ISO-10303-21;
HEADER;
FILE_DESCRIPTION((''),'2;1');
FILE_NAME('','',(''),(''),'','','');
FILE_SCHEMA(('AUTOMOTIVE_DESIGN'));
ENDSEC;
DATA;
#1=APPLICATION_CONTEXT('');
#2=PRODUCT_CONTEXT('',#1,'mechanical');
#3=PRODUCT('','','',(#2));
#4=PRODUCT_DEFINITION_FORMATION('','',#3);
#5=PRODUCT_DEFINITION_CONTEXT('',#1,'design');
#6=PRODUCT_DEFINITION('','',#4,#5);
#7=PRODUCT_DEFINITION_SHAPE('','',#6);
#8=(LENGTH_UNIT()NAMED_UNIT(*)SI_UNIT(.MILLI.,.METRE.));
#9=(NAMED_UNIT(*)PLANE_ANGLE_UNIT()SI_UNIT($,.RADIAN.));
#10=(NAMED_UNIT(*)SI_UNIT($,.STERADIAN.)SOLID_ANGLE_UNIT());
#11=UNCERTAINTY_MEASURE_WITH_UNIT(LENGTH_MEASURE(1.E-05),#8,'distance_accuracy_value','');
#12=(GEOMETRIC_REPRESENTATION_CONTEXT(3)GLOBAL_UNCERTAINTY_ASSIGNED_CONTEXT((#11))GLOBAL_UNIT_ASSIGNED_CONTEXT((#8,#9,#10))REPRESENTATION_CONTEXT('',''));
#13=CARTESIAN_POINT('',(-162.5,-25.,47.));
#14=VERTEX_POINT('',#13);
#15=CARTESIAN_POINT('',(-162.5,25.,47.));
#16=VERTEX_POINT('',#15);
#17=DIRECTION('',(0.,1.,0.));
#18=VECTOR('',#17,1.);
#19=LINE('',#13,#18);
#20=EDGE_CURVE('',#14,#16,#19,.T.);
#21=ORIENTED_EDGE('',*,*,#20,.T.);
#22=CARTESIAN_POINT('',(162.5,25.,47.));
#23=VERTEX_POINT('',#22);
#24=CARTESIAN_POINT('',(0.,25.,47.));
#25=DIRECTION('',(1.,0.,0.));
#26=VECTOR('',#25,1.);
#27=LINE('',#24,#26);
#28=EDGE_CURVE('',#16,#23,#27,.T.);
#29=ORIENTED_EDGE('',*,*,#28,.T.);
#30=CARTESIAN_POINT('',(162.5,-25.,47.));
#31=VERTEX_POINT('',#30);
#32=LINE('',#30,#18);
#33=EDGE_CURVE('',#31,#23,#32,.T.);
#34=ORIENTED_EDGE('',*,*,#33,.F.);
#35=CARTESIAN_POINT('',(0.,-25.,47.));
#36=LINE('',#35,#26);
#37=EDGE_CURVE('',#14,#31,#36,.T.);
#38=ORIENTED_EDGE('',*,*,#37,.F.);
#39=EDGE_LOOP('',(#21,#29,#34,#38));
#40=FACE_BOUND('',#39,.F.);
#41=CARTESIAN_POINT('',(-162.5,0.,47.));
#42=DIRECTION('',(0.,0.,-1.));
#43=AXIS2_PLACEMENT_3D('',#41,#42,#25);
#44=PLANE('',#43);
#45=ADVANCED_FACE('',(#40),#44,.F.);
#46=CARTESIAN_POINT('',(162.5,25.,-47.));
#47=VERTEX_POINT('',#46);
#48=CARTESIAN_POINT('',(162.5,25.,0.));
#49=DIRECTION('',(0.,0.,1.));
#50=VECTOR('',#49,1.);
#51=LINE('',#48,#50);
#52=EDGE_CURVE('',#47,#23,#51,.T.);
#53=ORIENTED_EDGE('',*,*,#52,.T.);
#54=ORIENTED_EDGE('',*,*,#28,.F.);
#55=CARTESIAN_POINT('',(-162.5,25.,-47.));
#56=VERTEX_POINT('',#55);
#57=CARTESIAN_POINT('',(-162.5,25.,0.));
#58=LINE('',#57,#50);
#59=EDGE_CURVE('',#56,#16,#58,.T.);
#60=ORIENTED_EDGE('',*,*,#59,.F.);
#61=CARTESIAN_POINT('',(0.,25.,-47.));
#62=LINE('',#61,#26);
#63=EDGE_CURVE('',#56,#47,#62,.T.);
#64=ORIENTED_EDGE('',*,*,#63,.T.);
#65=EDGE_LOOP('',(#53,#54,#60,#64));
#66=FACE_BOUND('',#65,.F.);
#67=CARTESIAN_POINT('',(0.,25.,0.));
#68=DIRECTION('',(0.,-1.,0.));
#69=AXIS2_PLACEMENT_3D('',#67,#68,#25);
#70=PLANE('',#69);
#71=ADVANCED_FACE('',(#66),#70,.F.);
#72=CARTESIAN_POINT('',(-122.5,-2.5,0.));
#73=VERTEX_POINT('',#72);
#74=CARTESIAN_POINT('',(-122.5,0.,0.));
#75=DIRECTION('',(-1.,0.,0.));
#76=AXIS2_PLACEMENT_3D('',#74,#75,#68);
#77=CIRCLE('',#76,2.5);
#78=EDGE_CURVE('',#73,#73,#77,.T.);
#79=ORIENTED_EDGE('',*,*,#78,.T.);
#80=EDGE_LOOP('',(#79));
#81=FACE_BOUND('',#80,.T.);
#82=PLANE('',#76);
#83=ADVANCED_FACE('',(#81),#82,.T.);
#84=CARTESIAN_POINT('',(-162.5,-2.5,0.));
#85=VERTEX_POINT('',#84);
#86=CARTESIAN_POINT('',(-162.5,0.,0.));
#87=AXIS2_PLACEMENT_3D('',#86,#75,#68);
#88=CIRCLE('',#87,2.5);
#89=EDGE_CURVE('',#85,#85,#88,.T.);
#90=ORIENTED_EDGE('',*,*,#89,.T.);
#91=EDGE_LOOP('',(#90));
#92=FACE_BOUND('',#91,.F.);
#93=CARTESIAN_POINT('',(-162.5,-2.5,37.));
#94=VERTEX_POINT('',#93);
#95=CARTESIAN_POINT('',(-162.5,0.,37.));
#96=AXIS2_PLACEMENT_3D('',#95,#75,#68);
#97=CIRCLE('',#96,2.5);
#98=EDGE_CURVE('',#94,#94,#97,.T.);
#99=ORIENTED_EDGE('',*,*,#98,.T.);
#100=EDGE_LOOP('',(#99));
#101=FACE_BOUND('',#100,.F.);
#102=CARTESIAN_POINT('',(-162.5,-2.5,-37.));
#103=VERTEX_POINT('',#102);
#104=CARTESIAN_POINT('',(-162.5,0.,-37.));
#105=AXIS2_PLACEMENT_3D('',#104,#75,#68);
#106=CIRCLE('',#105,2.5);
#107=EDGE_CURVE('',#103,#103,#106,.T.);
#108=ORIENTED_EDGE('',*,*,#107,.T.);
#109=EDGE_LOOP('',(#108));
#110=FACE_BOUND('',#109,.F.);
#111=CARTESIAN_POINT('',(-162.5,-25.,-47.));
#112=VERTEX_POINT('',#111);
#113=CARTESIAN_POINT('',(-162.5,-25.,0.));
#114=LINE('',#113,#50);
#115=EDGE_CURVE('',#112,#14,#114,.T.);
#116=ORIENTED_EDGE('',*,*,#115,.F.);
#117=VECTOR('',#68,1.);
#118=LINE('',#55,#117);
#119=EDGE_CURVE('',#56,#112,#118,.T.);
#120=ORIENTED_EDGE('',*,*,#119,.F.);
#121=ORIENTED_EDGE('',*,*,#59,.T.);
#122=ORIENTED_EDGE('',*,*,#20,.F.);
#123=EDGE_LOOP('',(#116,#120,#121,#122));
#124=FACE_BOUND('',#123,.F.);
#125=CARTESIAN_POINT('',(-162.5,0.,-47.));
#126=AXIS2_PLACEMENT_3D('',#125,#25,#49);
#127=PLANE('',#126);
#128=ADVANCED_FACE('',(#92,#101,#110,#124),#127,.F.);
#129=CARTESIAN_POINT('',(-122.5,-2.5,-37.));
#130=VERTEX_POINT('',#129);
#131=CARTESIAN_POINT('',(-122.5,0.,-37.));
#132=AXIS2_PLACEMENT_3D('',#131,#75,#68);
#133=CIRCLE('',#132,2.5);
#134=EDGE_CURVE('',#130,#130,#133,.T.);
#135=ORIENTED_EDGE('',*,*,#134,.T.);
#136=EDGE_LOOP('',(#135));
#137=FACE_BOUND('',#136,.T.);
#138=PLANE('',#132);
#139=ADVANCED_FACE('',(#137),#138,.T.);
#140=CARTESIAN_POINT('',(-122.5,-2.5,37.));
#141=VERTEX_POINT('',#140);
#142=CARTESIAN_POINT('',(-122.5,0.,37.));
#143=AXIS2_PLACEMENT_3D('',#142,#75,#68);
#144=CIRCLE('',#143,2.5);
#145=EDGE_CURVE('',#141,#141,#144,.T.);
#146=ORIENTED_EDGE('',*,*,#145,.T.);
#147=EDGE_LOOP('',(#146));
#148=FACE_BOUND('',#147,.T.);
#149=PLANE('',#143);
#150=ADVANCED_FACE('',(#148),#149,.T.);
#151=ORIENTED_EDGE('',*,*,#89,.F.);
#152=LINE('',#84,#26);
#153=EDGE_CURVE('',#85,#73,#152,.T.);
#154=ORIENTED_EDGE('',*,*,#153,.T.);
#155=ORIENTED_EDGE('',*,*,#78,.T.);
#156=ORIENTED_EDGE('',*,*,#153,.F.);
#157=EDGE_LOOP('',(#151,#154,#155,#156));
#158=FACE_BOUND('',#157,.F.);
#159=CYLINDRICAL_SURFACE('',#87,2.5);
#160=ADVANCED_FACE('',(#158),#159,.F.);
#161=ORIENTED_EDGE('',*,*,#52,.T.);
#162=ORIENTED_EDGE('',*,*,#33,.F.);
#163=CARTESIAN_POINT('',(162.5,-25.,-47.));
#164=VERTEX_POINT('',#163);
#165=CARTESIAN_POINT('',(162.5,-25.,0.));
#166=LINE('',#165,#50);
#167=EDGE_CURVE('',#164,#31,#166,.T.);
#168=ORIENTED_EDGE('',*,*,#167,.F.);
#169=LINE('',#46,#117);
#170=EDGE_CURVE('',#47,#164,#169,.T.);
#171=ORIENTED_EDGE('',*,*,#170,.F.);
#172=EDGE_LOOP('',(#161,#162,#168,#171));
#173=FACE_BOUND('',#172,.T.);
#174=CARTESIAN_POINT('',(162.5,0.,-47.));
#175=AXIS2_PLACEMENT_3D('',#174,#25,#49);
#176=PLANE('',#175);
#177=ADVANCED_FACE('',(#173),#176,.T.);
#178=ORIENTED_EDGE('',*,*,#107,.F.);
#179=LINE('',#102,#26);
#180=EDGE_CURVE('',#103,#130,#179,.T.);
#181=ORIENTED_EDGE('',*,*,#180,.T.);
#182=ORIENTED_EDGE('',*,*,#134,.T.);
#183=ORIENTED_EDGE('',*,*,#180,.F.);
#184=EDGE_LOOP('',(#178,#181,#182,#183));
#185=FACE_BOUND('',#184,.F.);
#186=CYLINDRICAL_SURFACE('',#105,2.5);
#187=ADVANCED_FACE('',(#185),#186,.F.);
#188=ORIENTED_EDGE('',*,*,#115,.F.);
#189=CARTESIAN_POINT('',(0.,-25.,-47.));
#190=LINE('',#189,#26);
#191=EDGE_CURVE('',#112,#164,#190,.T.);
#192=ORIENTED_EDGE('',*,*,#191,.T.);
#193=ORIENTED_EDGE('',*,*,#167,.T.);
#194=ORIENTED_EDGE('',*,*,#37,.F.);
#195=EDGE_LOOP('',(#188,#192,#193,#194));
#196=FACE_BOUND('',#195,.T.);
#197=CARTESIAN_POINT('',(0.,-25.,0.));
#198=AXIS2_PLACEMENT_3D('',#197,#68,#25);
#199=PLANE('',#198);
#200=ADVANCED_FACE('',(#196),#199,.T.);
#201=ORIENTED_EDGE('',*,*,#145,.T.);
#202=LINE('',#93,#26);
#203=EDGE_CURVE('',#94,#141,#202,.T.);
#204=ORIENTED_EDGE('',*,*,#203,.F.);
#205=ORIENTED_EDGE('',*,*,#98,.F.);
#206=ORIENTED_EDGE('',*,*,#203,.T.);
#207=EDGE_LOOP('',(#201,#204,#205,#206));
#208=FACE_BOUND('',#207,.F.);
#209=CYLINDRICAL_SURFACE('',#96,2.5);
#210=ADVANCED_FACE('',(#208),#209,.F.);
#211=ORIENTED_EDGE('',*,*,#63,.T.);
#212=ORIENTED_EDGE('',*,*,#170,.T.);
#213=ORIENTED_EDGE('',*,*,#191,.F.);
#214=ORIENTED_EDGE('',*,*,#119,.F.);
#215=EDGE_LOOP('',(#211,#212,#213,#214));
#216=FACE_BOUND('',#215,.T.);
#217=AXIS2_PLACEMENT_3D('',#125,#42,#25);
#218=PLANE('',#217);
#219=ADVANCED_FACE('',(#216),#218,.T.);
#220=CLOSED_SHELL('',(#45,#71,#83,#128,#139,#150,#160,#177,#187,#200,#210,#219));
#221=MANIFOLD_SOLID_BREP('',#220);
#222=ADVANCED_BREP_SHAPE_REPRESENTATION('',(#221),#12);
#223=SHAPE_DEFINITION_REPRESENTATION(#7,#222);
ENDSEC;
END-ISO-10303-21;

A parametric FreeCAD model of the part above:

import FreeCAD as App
import Part
import Sketcher
from FreeCAD import Vector
Q = App.Units.Quantity

doc = App.newDocument("Part")
params = doc.addObject("Spreadsheet::Sheet", "Params")
for row, (alias, value) in enumerate([
    ("sketch1_width", "325 mm"),
    ("sketch1_height", "94 mm"),
    ("pad1_length", "50 mm"),
    ("sketch2_diameter", "5 mm"),
    ("pocket1_length", "40 mm"),
], start=1):
    params.set(f"A{row}", alias)
    params.set(f"B{row}", "=" + value)
    params.setAlias(f"B{row}", alias)

body = doc.addObject("PartDesign::Body", "Body")

# Sketch on XZ plane
sketch1 = doc.addObject("Sketcher::SketchObject", "Sketch")
body.addObject(sketch1)
sketch1.AttachmentSupport = (doc.XZ_Plane, [""])
sketch1.MapMode = "FlatFace"
sketch1.addGeometry([
    Part.LineSegment(Vector(-162, 47, 0), Vector(-162, -47, 0)),
    Part.LineSegment(Vector(-162, -47, 0), Vector(162, -47, 0)),
    Part.LineSegment(Vector(162, -47, 0), Vector(162, 47, 0)),
    Part.LineSegment(Vector(162, 47, 0), Vector(-162, 47, 0)),
], False)
sketch1.addConstraint([
    Sketcher.Constraint("Coincident", 0, 2, 1, 1),
    Sketcher.Constraint("Coincident", 1, 2, 2, 1),
    Sketcher.Constraint("Coincident", 2, 2, 3, 1),
    Sketcher.Constraint("Coincident", 3, 2, 0, 1),
    Sketcher.Constraint("Vertical", 0),
    Sketcher.Constraint("Horizontal", 1),
    Sketcher.Constraint("Vertical", 2),
    Sketcher.Constraint("Horizontal", 3),
    Sketcher.Constraint("Symmetric", 0, 2, 2, 2, -1, 1),
    Sketcher.Constraint("DistanceX", 1, 1, 1, 2, Q("325 mm")),
    Sketcher.Constraint("DistanceY", 0, 2, 0, 1, Q("94 mm")),
])
sketch1.setExpression("Constraints[9]", "Params.sketch1_width")
sketch1.setExpression("Constraints[10]", "Params.sketch1_height")
pad1 = doc.addObject("PartDesign::Pad", "Pad")
body.addObject(pad1)
pad1.Profile = sketch1
pad1.setExpression("Length", "Params.pad1_length")
pad1.Midplane = True

# Sketch on YZ plane
sketch2 = doc.addObject("Sketcher::SketchObject", "Sketch001")
body.addObject(sketch2)
sketch2.AttachmentSupport = (doc.YZ_Plane, [""])
sketch2.MapMode = "FlatFace"
sketch2.AttachmentOffset = App.Placement(Vector(0, 0, -162.5), App.Rotation())
sketch2.addGeometry([
    Part.Circle(Vector(0, -37, 0), Vector(0, 0, 1), 2.5),
    Part.Circle(Vector(0, 0, 0), Vector(0, 0, 1), 2.5),
    Part.Circle(Vector(0, 37, 0), Vector(0, 0, 1), 2.5),
], False)
sketch2.addConstraint([
    Sketcher.Constraint("Coincident", 1, 3, -1, 1),
    Sketcher.Constraint("Equal", 0, 1),
    Sketcher.Constraint("Equal", 1, 2),
    Sketcher.Constraint("Symmetric", 0, 3, 2, 3, -1, 1),
    Sketcher.Constraint("PointOnObject", 0, 3, -2),
    Sketcher.Constraint("Diameter", 0, Q("5 mm")),
    Sketcher.Constraint("DistanceY", 0, 3, -1, 1, Q("37 mm")),
])
sketch2.setExpression("Constraints[5]", "Params.sketch2_diameter")
pocket1 = doc.addObject("PartDesign::Pocket", "Pocket")
body.addObject(pocket1)
pocket1.Profile = sketch2
pocket1.setExpression("Length", "Params.pocket1_length")
pocket1.Reversed = True

doc.recompute()
